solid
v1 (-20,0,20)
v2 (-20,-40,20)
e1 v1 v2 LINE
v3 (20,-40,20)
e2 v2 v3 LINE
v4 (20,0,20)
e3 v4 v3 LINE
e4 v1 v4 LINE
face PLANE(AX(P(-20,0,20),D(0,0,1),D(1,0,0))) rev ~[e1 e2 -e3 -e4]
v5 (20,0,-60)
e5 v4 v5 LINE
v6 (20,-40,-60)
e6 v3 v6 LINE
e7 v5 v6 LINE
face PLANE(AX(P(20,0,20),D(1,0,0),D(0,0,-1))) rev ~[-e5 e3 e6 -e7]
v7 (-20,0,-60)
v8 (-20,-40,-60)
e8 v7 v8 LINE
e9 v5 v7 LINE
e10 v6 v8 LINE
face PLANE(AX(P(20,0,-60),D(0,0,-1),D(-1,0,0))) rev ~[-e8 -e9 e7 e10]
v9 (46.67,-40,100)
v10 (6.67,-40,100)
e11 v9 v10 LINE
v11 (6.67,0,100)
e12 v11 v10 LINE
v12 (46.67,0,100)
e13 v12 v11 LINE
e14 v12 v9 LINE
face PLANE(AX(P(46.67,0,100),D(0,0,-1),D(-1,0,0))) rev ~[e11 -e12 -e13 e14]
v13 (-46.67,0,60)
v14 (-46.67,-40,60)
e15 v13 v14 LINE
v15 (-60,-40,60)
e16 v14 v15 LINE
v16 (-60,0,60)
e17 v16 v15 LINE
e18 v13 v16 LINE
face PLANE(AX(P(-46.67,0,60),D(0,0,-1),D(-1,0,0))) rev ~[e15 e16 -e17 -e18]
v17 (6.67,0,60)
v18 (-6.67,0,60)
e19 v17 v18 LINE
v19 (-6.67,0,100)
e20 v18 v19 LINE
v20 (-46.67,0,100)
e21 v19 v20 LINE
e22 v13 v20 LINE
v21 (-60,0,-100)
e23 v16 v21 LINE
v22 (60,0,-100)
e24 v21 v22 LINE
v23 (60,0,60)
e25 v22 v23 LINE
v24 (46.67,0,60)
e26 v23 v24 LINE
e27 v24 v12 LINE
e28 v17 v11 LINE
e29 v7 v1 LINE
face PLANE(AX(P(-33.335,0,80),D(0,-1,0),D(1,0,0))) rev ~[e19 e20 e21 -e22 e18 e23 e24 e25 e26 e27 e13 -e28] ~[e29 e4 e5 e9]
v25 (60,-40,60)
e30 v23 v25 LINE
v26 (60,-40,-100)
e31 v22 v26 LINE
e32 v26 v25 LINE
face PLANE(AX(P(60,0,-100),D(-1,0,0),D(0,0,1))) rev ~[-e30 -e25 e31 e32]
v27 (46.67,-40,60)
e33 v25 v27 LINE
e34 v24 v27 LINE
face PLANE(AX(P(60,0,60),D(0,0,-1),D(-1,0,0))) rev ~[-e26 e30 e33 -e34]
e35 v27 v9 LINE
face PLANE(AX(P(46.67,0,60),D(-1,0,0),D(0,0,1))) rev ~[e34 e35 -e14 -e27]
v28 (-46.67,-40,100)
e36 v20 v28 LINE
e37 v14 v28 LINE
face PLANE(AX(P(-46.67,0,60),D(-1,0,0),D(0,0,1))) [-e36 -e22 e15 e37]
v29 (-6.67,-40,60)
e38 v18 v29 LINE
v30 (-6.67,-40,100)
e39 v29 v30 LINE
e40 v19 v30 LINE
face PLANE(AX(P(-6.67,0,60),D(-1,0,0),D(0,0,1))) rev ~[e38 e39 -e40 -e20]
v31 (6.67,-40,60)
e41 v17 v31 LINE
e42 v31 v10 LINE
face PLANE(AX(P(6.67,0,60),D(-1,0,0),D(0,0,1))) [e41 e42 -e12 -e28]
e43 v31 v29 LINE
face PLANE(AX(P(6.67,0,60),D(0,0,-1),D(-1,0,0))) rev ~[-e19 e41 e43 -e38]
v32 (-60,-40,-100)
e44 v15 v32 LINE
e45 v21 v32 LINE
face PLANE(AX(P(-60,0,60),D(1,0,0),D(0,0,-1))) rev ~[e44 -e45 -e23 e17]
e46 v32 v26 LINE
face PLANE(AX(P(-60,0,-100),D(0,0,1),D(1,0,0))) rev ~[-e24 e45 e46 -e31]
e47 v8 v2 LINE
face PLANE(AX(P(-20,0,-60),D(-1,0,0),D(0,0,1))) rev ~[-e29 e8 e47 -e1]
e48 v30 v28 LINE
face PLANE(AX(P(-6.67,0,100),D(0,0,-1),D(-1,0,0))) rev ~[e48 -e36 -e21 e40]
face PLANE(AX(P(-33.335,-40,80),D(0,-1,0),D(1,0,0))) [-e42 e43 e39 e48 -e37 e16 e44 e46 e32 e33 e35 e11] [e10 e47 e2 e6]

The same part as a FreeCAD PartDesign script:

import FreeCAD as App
import Part
import Sketcher
Q = App.Units.Quantity


def add_polygon(sketch, points):
    """Adds a closed chain of lines whose ends are joined by coincident constraints."""
    first, n = sketch.GeometryCount, len(points)
    for a, b in zip(points, points[1:] + points[:1]):
        sketch.addGeometry(Part.LineSegment(App.Vector(*a, 0), App.Vector(*b, 0)), False)
    for i in range(n):
        sketch.addConstraint(Sketcher.Constraint("Coincident", first + i, 2, first + (i + 1) % n, 1))

doc = App.newDocument("Part")
params = doc.addObject("Spreadsheet::Sheet", "Params")
for row, (alias, value) in enumerate([
    ("sketch1_width", "120 mm"),
    ("sketch1_width2", "40 mm"),
    ("sketch1_height", "160 mm"),
    ("sketch1_height2", "80 mm"),
    ("sketch1_width3", "13.33 mm"),
    ("pad1_length", "40 mm"),
], start=1):
    params.set(f"A{row}", alias)
    params.set(f"B{row}", "=" + value)
    params.setAlias(f"B{row}", alias)

body = doc.addObject("PartDesign::Body", "Body")

sketch1 = body.newObject("Sketcher::SketchObject", "Sketch")
sketch1.AttachmentSupport = (doc.getObject("XZ_Plane"), [""])
sketch1.MapMode = "FlatFace"
add_polygon(sketch1, [(-47, 100), (-47, 60), (-60, 60), (-60, -100), (60, -100), (60, 60), (47, 60), (47, 100), (7, 100), (7, 60), (-7, 60), (-7, 100)])
add_polygon(sketch1, [(-20, 20), (20, 20), (20, -60), (-20, -60)])
sketch1.addConstraint(Sketcher.Constraint("Vertical", 0))
sketch1.addConstraint(Sketcher.Constraint("Horizontal", 1))
sketch1.addConstraint(Sketcher.Constraint("Vertical", 2))
sketch1.addConstraint(Sketcher.Constraint("Horizontal", 3))
sketch1.addConstraint(Sketcher.Constraint("Vertical", 4))
sketch1.addConstraint(Sketcher.Constraint("Horizontal", 5))
sketch1.addConstraint(Sketcher.Constraint("Vertical", 6))
sketch1.addConstraint(Sketcher.Constraint("Horizontal", 7))
sketch1.addConstraint(Sketcher.Constraint("Vertical", 8))
sketch1.addConstraint(Sketcher.Constraint("Horizontal", 9))
sketch1.addConstraint(Sketcher.Constraint("Vertical", 10))
sketch1.addConstraint(Sketcher.Constraint("Horizontal", 11))
sketch1.addConstraint(Sketcher.Constraint("Horizontal", 12))
sketch1.addConstraint(Sketcher.Constraint("Vertical", 13))
sketch1.addConstraint(Sketcher.Constraint("Horizontal", 14))
sketch1.addConstraint(Sketcher.Constraint("Vertical", 15))
sketch1.addConstraint(Sketcher.Constraint("Symmetric", 1, 2, 4, 2, -2))
sketch1.addConstraint(Sketcher.Constraint("Symmetric", 7, 2, 10, 2, -2))
sketch1.addConstraint(Sketcher.Constraint("Horizontal", 5, 2, 8, 2))
sketch1.addConstraint(Sketcher.Constraint("Equal", 1, 5))
sketch1.addConstraint(Sketcher.Constraint("Equal", 11, 12))
sketch1.addConstraint(Sketcher.Constraint("Equal", 14, 0))
sketch1.addConstraint(Sketcher.Constraint("DistanceX", 3, 1, 3, 2, Q("120 mm")))
sketch1.addConstraint(Sketcher.Constraint("DistanceX", 7, 2, 7, 1, Q("40 mm")))
sketch1.addConstraint(Sketcher.Constraint("DistanceY", 2, 2, 2, 1, Q("160 mm")))
sketch1.addConstraint(Sketcher.Constraint("DistanceY", 13, 2, 13, 1, Q("80 mm")))
sketch1.addConstraint(Sketcher.Constraint("DistanceY", -1, 1, 0, 2, Q("60 mm")))
sketch1.addConstraint(Sketcher.Constraint("DistanceX", -1, 1, 12, 2, Q("20 mm")))
sketch1.addConstraint(Sketcher.Constraint("DistanceY", -1, 1, 12, 2, Q("20 mm")))
sketch1.addConstraint(Sketcher.Constraint("DistanceX", 1, 2, 1, 1, Q("13.33 mm")))
sketch1.setExpression("Constraints[38]", "Params.sketch1_width")
sketch1.setExpression("Constraints[39]", "Params.sketch1_width2")
sketch1.setExpression("Constraints[40]", "Params.sketch1_height")
sketch1.setExpression("Constraints[41]", "Params.sketch1_height2")
sketch1.setExpression("Constraints[45]", "Params.sketch1_width3")
pad1 = body.newObject("PartDesign::Pad", "Pad")
pad1.Profile = sketch1
pad1.setExpression("Length", "Params.pad1_length")

doc.recompute()
